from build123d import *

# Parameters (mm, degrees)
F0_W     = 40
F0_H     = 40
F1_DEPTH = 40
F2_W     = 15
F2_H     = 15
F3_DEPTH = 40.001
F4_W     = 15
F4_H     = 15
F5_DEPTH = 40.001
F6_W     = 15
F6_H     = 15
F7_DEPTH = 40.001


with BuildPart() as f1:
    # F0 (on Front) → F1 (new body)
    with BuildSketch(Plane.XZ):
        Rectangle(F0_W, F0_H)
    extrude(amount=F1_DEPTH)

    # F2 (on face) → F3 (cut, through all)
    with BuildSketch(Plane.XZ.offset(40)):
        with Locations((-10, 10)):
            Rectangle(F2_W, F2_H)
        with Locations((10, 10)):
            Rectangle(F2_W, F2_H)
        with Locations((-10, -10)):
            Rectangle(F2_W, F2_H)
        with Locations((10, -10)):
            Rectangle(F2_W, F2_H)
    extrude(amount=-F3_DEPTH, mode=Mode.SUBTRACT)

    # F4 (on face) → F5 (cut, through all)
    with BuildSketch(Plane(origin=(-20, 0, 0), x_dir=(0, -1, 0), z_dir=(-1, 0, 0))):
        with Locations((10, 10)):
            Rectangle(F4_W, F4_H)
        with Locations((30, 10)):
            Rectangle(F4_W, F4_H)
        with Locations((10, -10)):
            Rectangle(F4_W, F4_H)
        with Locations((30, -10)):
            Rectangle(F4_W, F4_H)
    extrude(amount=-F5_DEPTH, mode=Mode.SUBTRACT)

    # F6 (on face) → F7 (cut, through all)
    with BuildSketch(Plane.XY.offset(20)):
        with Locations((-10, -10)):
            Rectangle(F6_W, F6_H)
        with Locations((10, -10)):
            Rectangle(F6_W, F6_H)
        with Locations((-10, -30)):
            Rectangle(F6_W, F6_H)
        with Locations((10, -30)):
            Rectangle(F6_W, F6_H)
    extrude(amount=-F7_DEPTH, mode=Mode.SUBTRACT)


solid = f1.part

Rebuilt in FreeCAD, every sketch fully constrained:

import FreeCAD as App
import Part
import Sketcher
from FreeCAD import Vector
Q = App.Units.Quantity

doc = App.newDocument("Part")
body = doc.addObject("PartDesign::Body", "Body")

# Sketch on XZ plane
sketch1 = body.newObject("Sketcher::SketchObject", "Sketch")
sketch1.AttachmentSupport = (doc.getObject("XZ_Plane"), [""])
sketch1.MapMode = "FlatFace"
sketch1.addGeometry([
    Part.LineSegment(Vector(-20, 20, 0), Vector(-20, -20, 0)),
    Part.LineSegment(Vector(-20, -20, 0), Vector(20, -20, 0)),
    Part.LineSegment(Vector(20, -20, 0), Vector(20, 20, 0)),
    Part.LineSegment(Vector(20, 20, 0), Vector(-20, 20, 0)),
], False)
sketch1.addConstraint([
    Sketcher.Constraint("Coincident", 0, 2, 1, 1),
    Sketcher.Constraint("Coincident", 1, 2, 2, 1),
    Sketcher.Constraint("Coincident", 2, 2, 3, 1),
    Sketcher.Constraint("Coincident", 3, 2, 0, 1),
    Sketcher.Constraint("Vertical", 0),
    Sketcher.Constraint("Horizontal", 1),
    Sketcher.Constraint("Vertical", 2),
    Sketcher.Constraint("Horizontal", 3),
    Sketcher.Constraint("Symmetric", 0, 2, 2, 2, -1, 1),
    Sketcher.Constraint("Equal", 3, 0),
    Sketcher.Constraint("DistanceX", 1, 1, 1, 2, Q("40 mm")),
])
pad1 = body.newObject("PartDesign::Pad", "Pad")
pad1.Profile = sketch1
pad1.Length = 40

# Sketch on XZ plane
sketch2 = body.newObject("Sketcher::SketchObject", "Sketch001")
sketch2.AttachmentSupport = (doc.getObject("XZ_Plane"), [""])
sketch2.MapMode = "FlatFace"
sketch2.AttachmentOffset = App.Placement(Vector(0, 0, 40), App.Rotation())
sketch2.addGeometry([
    Part.LineSegment(Vector(-18, 18, 0), Vector(-18, 2, 0)),  # 0
    Part.LineSegment(Vector(-18, 2, 0), Vector(-2, 2, 0)),  # 1
    Part.LineSegment(Vector(-2, 2, 0), Vector(-2, 18, 0)),  # 2
    Part.LineSegment(Vector(-2, 18, 0), Vector(-18, 18, 0)),  # 3
    Part.LineSegment(Vector(2, 18, 0), Vector(2, 2, 0)),  # 4
    Part.LineSegment(Vector(2, 2, 0), Vector(18, 2, 0)),  # 5
    Part.LineSegment(Vector(18, 2, 0), Vector(18, 18, 0)),  # 6
    Part.LineSegment(Vector(18, 18, 0), Vector(2, 18, 0)),  # 7
    Part.LineSegment(Vector(-18, -2, 0), Vector(-18, -18, 0)),  # 8
    Part.LineSegment(Vector(-18, -18, 0), Vector(-2, -18, 0)),  # 9
    Part.LineSegment(Vector(-2, -18, 0), Vector(-2, -2, 0)),  # 10
    Part.LineSegment(Vector(-2, -2, 0), Vector(-18, -2, 0)),  # 11
    Part.LineSegment(Vector(2, -2, 0), Vector(2, -18, 0)),  # 12
    Part.LineSegment(Vector(2, -18, 0), Vector(18, -18, 0)),  # 13
    Part.LineSegment(Vector(18, -18, 0), Vector(18, -2, 0)),  # 14
    Part.LineSegment(Vector(18, -2, 0), Vector(2, -2, 0)),  # 15
], False)
sketch2.addConstraint([
    Sketcher.Constraint("Coincident", 0, 2, 1, 1),
    Sketcher.Constraint("Coincident", 1, 2, 2, 1),
    Sketcher.Constraint("Coincident", 2, 2, 3, 1),
    Sketcher.Constraint("Coincident", 3, 2, 0, 1),
    Sketcher.Constraint("Coincident", 4, 2, 5, 1),
    Sketcher.Constraint("Coincident", 5, 2, 6, 1),
    Sketcher.Constraint("Coincident", 6, 2, 7, 1),
    Sketcher.Constraint("Coincident", 7, 2, 4, 1),
    Sketcher.Constraint("Coincident", 8, 2, 9, 1),
    Sketcher.Constraint("Coincident", 9, 2, 10, 1),
    Sketcher.Constraint("Coincident", 10, 2, 11, 1),
    Sketcher.Constraint("Coincident", 11, 2, 8, 1),
    Sketcher.Constraint("Coincident", 12, 2, 13, 1),
    Sketcher.Constraint("Coincident", 13, 2, 14, 1),
    Sketcher.Constraint("Coincident", 14, 2, 15, 1),
    Sketcher.Constraint("Coincident", 15, 2, 12, 1),
    Sketcher.Constraint("Vertical", 0),
    Sketcher.Constraint("Horizontal", 1),
    Sketcher.Constraint("Vertical", 2),
    Sketcher.Constraint("Horizontal", 3),
    Sketcher.Constraint("Vertical", 4),
    Sketcher.Constraint("Horizontal", 5),
    Sketcher.Constraint("Vertical", 6),
    Sketcher.Constraint("Horizontal", 7),
    Sketcher.Constraint("Vertical", 8),
    Sketcher.Constraint("Horizontal", 9),
    Sketcher.Constraint("Vertical", 10),
    Sketcher.Constraint("Horizontal", 11),
    Sketcher.Constraint("Vertical", 12),
    Sketcher.Constraint("Horizontal", 13),
    Sketcher.Constraint("Vertical", 14),
    Sketcher.Constraint("Horizontal", 15),
    Sketcher.Constraint("Symmetric", 6, 2, 8, 2, -1, 1),
    Sketcher.Constraint("Symmetric", 4, 2, 10, 2, -1, 1),
    Sketcher.Constraint("Symmetric", 2, 2, 12, 2, -1, 1),
    Sketcher.Constraint("Symmetric", 0, 2, 14, 2, -1, 1),
    Sketcher.Constraint("Symmetric", 1, 2, 4, 2, -2),
    Sketcher.Constraint("Symmetric", 3, 2, 6, 2, -2),
    Sketcher.Constraint("Equal", 15, 0),
    Sketcher.Constraint("DistanceX", 1, 1, 1, 2, Q("15 mm")),
    Sketcher.Constraint("DistanceX", 1, 2, 4, 2, Q("5 mm")),
    Sketcher.Constraint("DistanceY", 8, 2, 0, 2, Q("20 mm")),
])
pocket1 = body.newObject("PartDesign::Pocket", "Pocket")
pocket1.Profile = sketch2
pocket1.Type = "ThroughAll"

# Sketch on YZ plane
sketch3 = body.newObject("Sketcher::SketchObject", "Sketch002")
sketch3.AttachmentSupport = (doc.getObject("YZ_Plane"), [""])
sketch3.MapMode = "FlatFace"
sketch3.AttachmentOffset = App.Placement(Vector(0, 0, -20), App.Rotation())
sketch3.addGeometry([
    Part.LineSegment(Vector(-2, 18, 0), Vector(-2, 2, 0)),  # 0
    Part.LineSegment(Vector(-2, 2, 0), Vector(-18, 2, 0)),  # 1
    Part.LineSegment(Vector(-18, 2, 0), Vector(-18, 18, 0)),  # 2
    Part.LineSegment(Vector(-18, 18, 0), Vector(-2, 18, 0)),  # 3
    Part.LineSegment(Vector(-22, 18, 0), Vector(-22, 2, 0)),  # 4
    Part.LineSegment(Vector(-22, 2, 0), Vector(-38, 2, 0)),  # 5
    Part.LineSegment(Vector(-38, 2, 0), Vector(-38, 18, 0)),  # 6
    Part.LineSegment(Vector(-38, 18, 0), Vector(-22, 18, 0)),  # 7
    Part.LineSegment(Vector(-2, -2, 0), Vector(-2, -18, 0)),  # 8
    Part.LineSegment(Vector(-2, -18, 0), Vector(-18, -18, 0)),  # 9
    Part.LineSegment(Vector(-18, -18, 0), Vector(-18, -2, 0)),  # 10
    Part.LineSegment(Vector(-18, -2, 0), Vector(-2, -2, 0)),  # 11
    Part.LineSegment(Vector(-22, -2, 0), Vector(-22, -18, 0)),  # 12
    Part.LineSegment(Vector(-22, -18, 0), Vector(-38, -18, 0)),  # 13
    Part.LineSegment(Vector(-38, -18, 0), Vector(-38, -2, 0)),  # 14
    Part.LineSegment(Vector(-38, -2, 0), Vector(-22, -2, 0)),  # 15
], False)
sketch3.addConstraint([
    Sketcher.Constraint("Coincident", 0, 2, 1, 1),
    Sketcher.Constraint("Coincident", 1, 2, 2, 1),
    Sketcher.Constraint("Coincident", 2, 2, 3, 1),
    Sketcher.Constraint("Coincident", 3, 2, 0, 1),
    Sketcher.Constraint("Coincident", 4, 2, 5, 1),
    Sketcher.Constraint("Coincident", 5, 2, 6, 1),
    Sketcher.Constraint("Coincident", 6, 2, 7, 1),
    Sketcher.Constraint("Coincident", 7, 2, 4, 1),
    Sketcher.Constraint("Coincident", 8, 2, 9, 1),
    Sketcher.Constraint("Coincident", 9, 2, 10, 1),
    Sketcher.Constraint("Coincident", 10, 2, 11, 1),
    Sketcher.Constraint("Coincident", 11, 2, 8, 1),
    Sketcher.Constraint("Coincident", 12, 2, 13, 1),
    Sketcher.Constraint("Coincident", 13, 2, 14, 1),
    Sketcher.Constraint("Coincident", 14, 2, 15, 1),
    Sketcher.Constraint("Coincident", 15, 2, 12, 1),
    Sketcher.Constraint("Vertical", 0),
    Sketcher.Constraint("Horizontal", 1),
    Sketcher.Constraint("Vertical", 2),
    Sketcher.Constraint("Horizontal", 3),
    Sketcher.Constraint("Vertical", 4),
    Sketcher.Constraint("Horizontal", 5),
    Sketcher.Constraint("Vertical", 6),
    Sketcher.Constraint("Horizontal", 7),
    Sketcher.Constraint("Vertical", 8),
    Sketcher.Constraint("Horizontal", 9),
    Sketcher.Constraint("Vertical", 10),
    Sketcher.Constraint("Horizontal", 11),
    Sketcher.Constraint("Vertical", 12),
    Sketcher.Constraint("Horizontal", 13),
    Sketcher.Constraint("Vertical", 14),
    Sketcher.Constraint("Horizontal", 15),
    Sketcher.Constraint("Symmetric", 3, 2, 8, 2, -1),
    Sketcher.Constraint("Symmetric", 1, 2, 10, 2, -1),
    Sketcher.Constraint("Symmetric", 7, 2, 12, 2, -1),
    Sketcher.Constraint("Symmetric", 5, 2, 14, 2, -1),
    Sketcher.Constraint("Horizontal", 1, 2, 4, 2),
    Sketcher.Constraint("Horizontal", 3, 2, 6, 2),
    Sketcher.Constraint("Equal", 3, 5),
    Sketcher.Constraint("Equal", 15, 0),
    Sketcher.Constraint("DistanceX", 1, 2, 1, 1, Q("15 mm")),
    Sketcher.Constraint("DistanceX", 4, 2, 1, 2, Q("5 mm")),
    Sketcher.Constraint("DistanceY", 8, 2, 0, 2, Q("20 mm")),
    Sketcher.Constraint("DistanceX", 0, 2, -1, 1, Q("2.5 mm")),
])
pocket2 = body.newObject("PartDesign::Pocket", "Pocket001")
pocket2.Profile = sketch3
pocket2.Type = "ThroughAll"
pocket2.Reversed = True

# Sketch on XY plane
sketch4 = body.newObject("Sketcher::SketchObject", "Sketch003")
sketch4.AttachmentSupport = (doc.getObject("XY_Plane"), [""])
sketch4.MapMode = "FlatFace"
sketch4.AttachmentOffset = App.Placement(Vector(0, 0, 20), App.Rotation())
sketch4.addGeometry([
    Part.LineSegment(Vector(-18, -2, 0), Vector(-18, -18, 0)),  # 0
    Part.LineSegment(Vector(-18, -18, 0), Vector(-2, -18, 0)),  # 1
    Part.LineSegment(Vector(-2, -18, 0), Vector(-2, -2, 0)),  # 2
    Part.LineSegment(Vector(-2, -2, 0), Vector(-18, -2, 0)),  # 3
    Part.LineSegment(Vector(2, -2, 0), Vector(2, -18, 0)),  # 4
    Part.LineSegment(Vector(2, -18, 0), Vector(18, -18, 0)),  # 5
    Part.LineSegment(Vector(18, -18, 0), Vector(18, -2, 0)),  # 6
    Part.LineSegment(Vector(18, -2, 0), Vector(2, -2, 0)),  # 7
    Part.LineSegment(Vector(-18, -22, 0), Vector(-18, -38, 0)),  # 8
    Part.LineSegment(Vector(-18, -38, 0), Vector(-2, -38, 0)),  # 9
    Part.LineSegment(Vector(-2, -38, 0), Vector(-2, -22, 0)),  # 10
    Part.LineSegment(Vector(-2, -22, 0), Vector(-18, -22, 0)),  # 11
    Part.LineSegment(Vector(2, -22, 0), Vector(2, -38, 0)),  # 12
    Part.LineSegment(Vector(2, -38, 0), Vector(18, -38, 0)),  # 13
    Part.LineSegment(Vector(18, -38, 0), Vector(18, -22, 0)),  # 14
    Part.LineSegment(Vector(18, -22, 0), Vector(2, -22, 0)),  # 15
], False)
sketch4.addConstraint([
    Sketcher.Constraint("Coincident", 0, 2, 1, 1),
    Sketcher.Constraint("Coincident", 1, 2, 2, 1),
    Sketcher.Constraint("Coincident", 2, 2, 3, 1),
    Sketcher.Constraint("Coincident", 3, 2, 0, 1),
    Sketcher.Constraint("Coincident", 4, 2, 5, 1),
    Sketcher.Constraint("Coincident", 5, 2, 6, 1),
    Sketcher.Constraint("Coincident", 6, 2, 7, 1),
    Sketcher.Constraint("Coincident", 7, 2, 4, 1),
    Sketcher.Constraint("Coincident", 8, 2, 9, 1),
    Sketcher.Constraint("Coincident", 9, 2, 10, 1),
    Sketcher.Constraint("Coincident", 10, 2, 11, 1),
    Sketcher.Constraint("Coincident", 11, 2, 8, 1),
    Sketcher.Constraint("Coincident", 12, 2, 13, 1),
    Sketcher.Constraint("Coincident", 13, 2, 14, 1),
    Sketcher.Constraint("Coincident", 14, 2, 15, 1),
    Sketcher.Constraint("Coincident", 15, 2, 12, 1),
    Sketcher.Constraint("Vertical", 0),
    Sketcher.Constraint("Horizontal", 1),
    Sketcher.Constraint("Vertical", 2),
    Sketcher.Constraint("Horizontal", 3),
    Sketcher.Constraint("Vertical", 4),
    Sketcher.Constraint("Horizontal", 5),
    Sketcher.Constraint("Vertical", 6),
    Sketcher.Constraint("Horizontal", 7),
    Sketcher.Constraint("Vertical", 8),
    Sketcher.Constraint("Horizontal", 9),
    Sketcher.Constraint("Vertical", 10),
    Sketcher.Constraint("Horizontal", 11),
    Sketcher.Constraint("Vertical", 12),
    Sketcher.Constraint("Horizontal", 13),
    Sketcher.Constraint("Vertical", 14),
    Sketcher.Constraint("Horizontal", 15),
    Sketcher.Constraint("Symmetric", 1, 2, 4, 2, -2),
    Sketcher.Constraint("Symmetric", 3, 2, 6, 2, -2),
    Sketcher.Constraint("Symmetric", 9, 2, 12, 2, -2),
    Sketcher.Constraint("Symmetric", 11, 2, 14, 2, -2),
    Sketcher.Constraint("Vertical", 3, 2, 8, 2),
    Sketcher.Constraint("Vertical", 2, 2, 9, 2),
    Sketcher.Constraint("Equal", 15, 0),
    Sketcher.Constraint("Equal", 6, 8),
    Sketcher.Constraint("DistanceX", 1, 1, 1, 2, Q("15 mm")),
    Sketcher.Constraint("DistanceX", 1, 2, 4, 2, Q("5 mm")),
    Sketcher.Constraint("DistanceY", 8, 2, 0, 2, Q("20 mm")),
    Sketcher.Constraint("DistanceY", 0, 2, -1, 1, Q("17.5 mm")),
])
pocket3 = body.newObject("PartDesign::Pocket", "Pocket002")
pocket3.Profile = sketch4
pocket3.Type = "ThroughAll"

doc.recompute()
